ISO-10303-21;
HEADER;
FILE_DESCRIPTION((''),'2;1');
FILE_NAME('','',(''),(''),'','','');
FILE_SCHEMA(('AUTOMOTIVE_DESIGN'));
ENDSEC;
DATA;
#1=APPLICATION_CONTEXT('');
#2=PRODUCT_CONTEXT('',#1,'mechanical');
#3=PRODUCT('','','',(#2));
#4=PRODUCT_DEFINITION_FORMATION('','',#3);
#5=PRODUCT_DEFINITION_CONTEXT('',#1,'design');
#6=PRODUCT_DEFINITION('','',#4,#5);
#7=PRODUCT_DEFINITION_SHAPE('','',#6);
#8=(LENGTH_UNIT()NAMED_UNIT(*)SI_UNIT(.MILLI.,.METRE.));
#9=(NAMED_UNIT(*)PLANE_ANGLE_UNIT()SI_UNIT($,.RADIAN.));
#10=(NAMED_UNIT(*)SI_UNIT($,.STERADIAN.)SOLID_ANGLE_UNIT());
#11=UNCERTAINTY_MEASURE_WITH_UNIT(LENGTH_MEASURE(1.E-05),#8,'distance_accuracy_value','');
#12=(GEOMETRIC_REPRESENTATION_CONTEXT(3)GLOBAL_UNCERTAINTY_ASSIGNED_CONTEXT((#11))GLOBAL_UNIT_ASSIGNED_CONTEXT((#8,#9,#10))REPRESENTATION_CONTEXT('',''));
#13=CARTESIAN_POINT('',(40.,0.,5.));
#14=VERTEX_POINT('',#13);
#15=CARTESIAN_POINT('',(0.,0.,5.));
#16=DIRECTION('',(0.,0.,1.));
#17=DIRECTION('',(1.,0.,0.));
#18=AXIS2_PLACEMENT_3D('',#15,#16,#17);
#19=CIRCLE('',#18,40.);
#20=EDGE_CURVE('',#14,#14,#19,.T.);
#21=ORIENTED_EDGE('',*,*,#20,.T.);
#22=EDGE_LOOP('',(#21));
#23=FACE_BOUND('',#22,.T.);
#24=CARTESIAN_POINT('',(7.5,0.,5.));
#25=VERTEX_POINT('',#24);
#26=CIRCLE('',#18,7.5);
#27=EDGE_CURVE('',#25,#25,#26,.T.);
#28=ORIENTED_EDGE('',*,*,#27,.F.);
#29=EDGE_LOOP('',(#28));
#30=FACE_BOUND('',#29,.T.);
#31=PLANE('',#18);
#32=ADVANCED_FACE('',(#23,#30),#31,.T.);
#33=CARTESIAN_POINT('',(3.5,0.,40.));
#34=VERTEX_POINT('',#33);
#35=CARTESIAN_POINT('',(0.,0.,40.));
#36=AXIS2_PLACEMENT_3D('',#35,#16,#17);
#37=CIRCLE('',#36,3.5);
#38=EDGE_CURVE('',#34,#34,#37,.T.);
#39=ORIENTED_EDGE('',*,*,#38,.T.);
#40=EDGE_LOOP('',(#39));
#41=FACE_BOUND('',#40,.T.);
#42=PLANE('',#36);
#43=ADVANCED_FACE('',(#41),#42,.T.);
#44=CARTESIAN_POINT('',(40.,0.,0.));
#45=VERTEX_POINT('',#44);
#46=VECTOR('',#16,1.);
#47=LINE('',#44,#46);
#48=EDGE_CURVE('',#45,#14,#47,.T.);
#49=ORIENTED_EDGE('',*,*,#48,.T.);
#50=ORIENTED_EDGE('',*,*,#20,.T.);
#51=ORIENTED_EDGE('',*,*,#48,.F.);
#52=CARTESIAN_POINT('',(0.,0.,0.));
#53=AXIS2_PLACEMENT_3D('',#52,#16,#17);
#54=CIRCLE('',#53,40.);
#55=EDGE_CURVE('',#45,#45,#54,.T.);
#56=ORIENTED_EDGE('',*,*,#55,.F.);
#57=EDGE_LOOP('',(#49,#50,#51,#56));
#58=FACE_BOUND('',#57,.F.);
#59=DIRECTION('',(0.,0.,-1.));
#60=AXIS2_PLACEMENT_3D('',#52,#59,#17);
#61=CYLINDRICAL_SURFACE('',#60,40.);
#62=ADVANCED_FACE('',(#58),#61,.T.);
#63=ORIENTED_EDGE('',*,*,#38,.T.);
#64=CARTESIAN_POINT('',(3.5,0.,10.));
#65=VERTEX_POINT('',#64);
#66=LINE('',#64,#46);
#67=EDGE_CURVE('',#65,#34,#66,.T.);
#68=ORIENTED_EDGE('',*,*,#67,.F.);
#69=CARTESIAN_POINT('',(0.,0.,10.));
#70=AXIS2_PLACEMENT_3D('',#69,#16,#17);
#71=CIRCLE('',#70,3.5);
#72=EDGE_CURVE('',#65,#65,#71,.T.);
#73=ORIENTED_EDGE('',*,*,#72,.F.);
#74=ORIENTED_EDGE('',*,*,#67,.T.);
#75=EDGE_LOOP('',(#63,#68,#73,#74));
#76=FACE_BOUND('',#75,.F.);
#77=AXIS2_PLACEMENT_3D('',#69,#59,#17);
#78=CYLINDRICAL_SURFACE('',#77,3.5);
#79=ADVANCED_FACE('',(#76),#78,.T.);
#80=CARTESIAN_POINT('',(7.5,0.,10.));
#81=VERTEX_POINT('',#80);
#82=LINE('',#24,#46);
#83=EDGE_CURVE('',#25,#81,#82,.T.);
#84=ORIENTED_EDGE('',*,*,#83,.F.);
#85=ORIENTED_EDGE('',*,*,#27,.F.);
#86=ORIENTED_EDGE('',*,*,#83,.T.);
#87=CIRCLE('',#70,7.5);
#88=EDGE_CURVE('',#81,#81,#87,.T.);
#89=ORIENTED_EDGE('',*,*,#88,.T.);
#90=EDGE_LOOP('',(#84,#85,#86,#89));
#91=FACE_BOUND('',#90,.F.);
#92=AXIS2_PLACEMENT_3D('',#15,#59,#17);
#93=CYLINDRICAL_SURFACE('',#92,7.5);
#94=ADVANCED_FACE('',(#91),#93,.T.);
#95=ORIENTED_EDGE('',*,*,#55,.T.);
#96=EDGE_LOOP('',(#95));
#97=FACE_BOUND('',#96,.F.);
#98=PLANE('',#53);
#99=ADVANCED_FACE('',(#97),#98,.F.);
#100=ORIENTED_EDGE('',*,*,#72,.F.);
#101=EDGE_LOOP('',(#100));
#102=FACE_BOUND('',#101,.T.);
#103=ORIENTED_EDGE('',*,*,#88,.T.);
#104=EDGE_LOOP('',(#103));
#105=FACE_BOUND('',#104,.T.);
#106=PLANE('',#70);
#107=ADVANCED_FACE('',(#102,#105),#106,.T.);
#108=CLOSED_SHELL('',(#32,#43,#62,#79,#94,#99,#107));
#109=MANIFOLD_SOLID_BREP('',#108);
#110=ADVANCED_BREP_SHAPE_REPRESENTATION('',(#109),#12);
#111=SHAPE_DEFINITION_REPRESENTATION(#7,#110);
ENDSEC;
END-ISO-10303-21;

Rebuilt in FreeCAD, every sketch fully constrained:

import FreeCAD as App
import Part
import Sketcher
from FreeCAD import Vector
Q = App.Units.Quantity

doc = App.newDocument("Part")
params = doc.addObject("Spreadsheet::Sheet", "Params")
for row, (alias, value) in enumerate([
    ("sketch1_diameter", "7 mm"),
    ("pad1_length", "30 mm"),
    ("sketch2_diameter", "15 mm"),
    ("pad2_length", "5 mm"),
    ("sketch3_diameter", "80 mm"),
    ("pad3_length", "5 mm"),
], start=1):
    params.set(f"A{row}", alias)
    params.set(f"B{row}", "=" + value)
    params.setAlias(f"B{row}", alias)

body = doc.addObject("PartDesign::Body", "Body")

# Sketch on XY plane
sketch1 = doc.addObject("Sketcher::SketchObject", "Sketch")
body.addObject(sketch1)
sketch1.AttachmentSupport = (doc.XY_Plane, [""])
sketch1.MapMode = "FlatFace"
sketch1.AttachmentOffset = App.Placement(Vector(0, 0, 10), App.Rotation())
sketch1.addGeometry(Part.Circle(Vector(0, 0, 0), Vector(0, 0, 1), 3.5), False)
sketch1.addConstraint([
    Sketcher.Constraint("Coincident", 0, 3, -1, 1),
    Sketcher.Constraint("Diameter", 0, Q("7 mm")),
])
sketch1.setExpression("Constraints[1]", "Params.sketch1_diameter")
pad1 = doc.addObject("PartDesign::Pad", "Pad")
body.addObject(pad1)
pad1.Profile = sketch1
pad1.setExpression("Length", "Params.pad1_length")
body2 = doc.addObject("PartDesign::Body", "Body001")

# Sketch on XY plane
sketch2 = doc.addObject("Sketcher::SketchObject", "Sketch001")
body2.addObject(sketch2)
sketch2.AttachmentSupport = (doc.getObject("XY_Plane001"), [""])
sketch2.MapMode = "FlatFace"
sketch2.AttachmentOffset = App.Placement(Vector(0, 0, 5), App.Rotation())
sketch2.addGeometry(Part.Circle(Vector(0, 0, 0), Vector(0, 0, 1), 7.5), False)
sketch2.addConstraint([
    Sketcher.Constraint("Coincident", 0, 3, -1, 1),
    Sketcher.Constraint("Diameter", 0, Q("15 mm")),
])
sketch2.setExpression("Constraints[1]", "Params.sketch2_diameter")
pad2 = doc.addObject("PartDesign::Pad", "Pad001")
body2.addObject(pad2)
pad2.Profile = sketch2
pad2.setExpression("Length", "Params.pad2_length")
body3 = doc.addObject("PartDesign::Body", "Body002")

# Sketch on XY plane
sketch3 = doc.addObject("Sketcher::SketchObject", "Sketch002")
body3.addObject(sketch3)
sketch3.AttachmentSupport = (doc.getObject("XY_Plane002"), [""])
sketch3.MapMode = "FlatFace"
sketch3.addGeometry(Part.Circle(Vector(0, 0, 0), Vector(0, 0, 1), 40), False)
sketch3.addConstraint([
    Sketcher.Constraint("Coincident", 0, 3, -1, 1),
    Sketcher.Constraint("Diameter", 0, Q("80 mm")),
])
sketch3.setExpression("Constraints[1]", "Params.sketch3_diameter")
pad3 = doc.addObject("PartDesign::Pad", "Pad002")
body3.addObject(pad3)
pad3.Profile = sketch3
pad3.setExpression("Length", "Params.pad3_length")
doc.recompute()

boolean = doc.addObject("PartDesign::Boolean", "Boolean")
body3.addObject(boolean)
boolean.Type = "Fuse"
boolean.addObjects([body2])
doc.recompute()

boolean2 = doc.addObject("PartDesign::Boolean", "Boolean001")
body3.addObject(boolean2)
boolean2.Type = "Fuse"
boolean2.addObjects([body])

doc.recompute()
